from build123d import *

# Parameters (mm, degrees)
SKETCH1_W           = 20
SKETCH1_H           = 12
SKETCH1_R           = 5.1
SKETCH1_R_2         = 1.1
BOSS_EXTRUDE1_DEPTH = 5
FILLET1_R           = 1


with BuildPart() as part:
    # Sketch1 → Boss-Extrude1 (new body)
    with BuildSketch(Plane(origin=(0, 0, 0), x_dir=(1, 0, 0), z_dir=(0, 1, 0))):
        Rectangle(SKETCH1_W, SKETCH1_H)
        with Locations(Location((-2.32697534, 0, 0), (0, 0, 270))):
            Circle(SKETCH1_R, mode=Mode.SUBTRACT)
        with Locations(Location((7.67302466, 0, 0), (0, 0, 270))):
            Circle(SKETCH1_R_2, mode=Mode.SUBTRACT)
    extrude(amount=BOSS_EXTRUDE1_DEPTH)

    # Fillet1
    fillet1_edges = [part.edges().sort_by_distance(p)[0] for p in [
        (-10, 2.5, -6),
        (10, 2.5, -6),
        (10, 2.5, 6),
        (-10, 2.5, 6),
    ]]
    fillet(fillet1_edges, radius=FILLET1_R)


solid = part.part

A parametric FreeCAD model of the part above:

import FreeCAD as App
import Part
import Sketcher
from FreeCAD import Vector


def edges_at(feature, points):
    """Names of the edges that pass closest to the given points."""
    edges = feature.Shape.Edges
    near = lambda p: min(range(len(edges)), key=lambda i: edges[i].distToShape(Part.Vertex(*p))[0])
    return sorted({f"Edge{near(p) + 1}" for p in points})

doc = App.newDocument("Part")
body = doc.addObject("PartDesign::Body", "Body")

sketch1 = doc.addObject("Sketcher::SketchObject", "Sketch")
body.addObject(sketch1)
sketch1.AttachmentSupport = (doc.XZ_Plane, [""])
sketch1.MapMode = "FlatFace"
sketch1.addGeometry(Part.LineSegment(Vector(-10, -6, 0), Vector(-10, 6, 0)), False)
sketch1.addGeometry(Part.LineSegment(Vector(-10, 6, 0), Vector(10, 6, 0)), False)
sketch1.addGeometry(Part.LineSegment(Vector(10, 6, 0), Vector(10, -6, 0)), False)
sketch1.addGeometry(Part.LineSegment(Vector(10, -6, 0), Vector(-10, -6, 0)), False)
sketch1.addGeometry(Part.Circle(Vector(-2.3, 0, 0), Vector(0, 0, 1), 5.1), False)
sketch1.addGeometry(Part.Circle(Vector(7.7, 0, 0), Vector(0, 0, 1), 1.1), False)
sketch1.addConstraint(Sketcher.Constraint("Coincident", 0, 2, 1, 1))
sketch1.addConstraint(Sketcher.Constraint("Coincident", 1, 2, 2, 1))
sketch1.addConstraint(Sketcher.Constraint("Coincident", 2, 2, 3, 1))
sketch1.addConstraint(Sketcher.Constraint("Coincident", 3, 2, 0, 1))
sketch1.addConstraint(Sketcher.Constraint("Vertical", 0))
sketch1.addConstraint(Sketcher.Constraint("Horizontal", 1))
sketch1.addConstraint(Sketcher.Constraint("Vertical", 2))
sketch1.addConstraint(Sketcher.Constraint("Horizontal", 3))
sketch1.addConstraint(Sketcher.Constraint("Symmetric", 0, 2, 2, 2, -1, 1))
sketch1.addConstraint(Sketcher.Constraint("PointOnObject", 4, 3, -1))
sketch1.addConstraint(Sketcher.Constraint("PointOnObject", 5, 3, -1))
sketch1.addConstraint(Sketcher.Constraint("Diameter", 4, 10.2))
sketch1.addConstraint(Sketcher.Constraint("Diameter", 5, 2.2))
sketch1.addConstraint(Sketcher.Constraint("DistanceX", 1, 1, 1, 2, 20.0))
sketch1.addConstraint(Sketcher.Constraint("DistanceY", 0, 1, 0, 2, 12.0))
sketch1.addConstraint(Sketcher.Constraint("DistanceX", 4, 3, 5, 3, 10.0))
sketch1.addConstraint(Sketcher.Constraint("DistanceX", 4, 3, -1, 1, 2.326975))
pad1 = doc.addObject("PartDesign::Pad", "Pad")
body.addObject(pad1)
pad1.Profile = sketch1
pad1.Length = 5
pad1.Reversed = True
doc.recompute()

fillet = doc.addObject("PartDesign::Fillet", "Fillet")
body.addObject(fillet)
fillet.Base = (pad1, edges_at(pad1, [
    (-10, 2.5, -6),
    (10, 2.5, -6),
    (10, 2.5, 6),
    (-10, 2.5, 6),
]))
fillet.Radius = 1

doc.recompute()
